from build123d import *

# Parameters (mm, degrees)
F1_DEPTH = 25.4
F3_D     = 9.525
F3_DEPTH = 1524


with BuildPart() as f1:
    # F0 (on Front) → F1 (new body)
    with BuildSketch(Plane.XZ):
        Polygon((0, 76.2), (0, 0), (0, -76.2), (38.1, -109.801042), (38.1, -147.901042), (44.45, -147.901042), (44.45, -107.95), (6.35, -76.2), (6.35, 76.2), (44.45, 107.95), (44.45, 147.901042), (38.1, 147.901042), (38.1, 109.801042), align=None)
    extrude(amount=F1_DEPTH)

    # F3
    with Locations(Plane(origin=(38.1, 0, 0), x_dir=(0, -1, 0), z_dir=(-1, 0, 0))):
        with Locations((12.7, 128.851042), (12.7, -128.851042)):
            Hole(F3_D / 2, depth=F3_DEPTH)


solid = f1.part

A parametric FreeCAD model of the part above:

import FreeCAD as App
import Part
import Sketcher
from FreeCAD import Vector
Q = App.Units.Quantity

doc = App.newDocument("Part")
body = doc.addObject("PartDesign::Body", "Body")

sketch1 = doc.addObject("Sketcher::SketchObject", "Sketch")
body.addObject(sketch1)
sketch1.AttachmentSupport = (doc.XZ_Plane, [""])
sketch1.MapMode = "FlatFace"
sketch1.addGeometry([
    Part.LineSegment(Vector(0, 76, 0), Vector(0, -76, 0)),
    Part.LineSegment(Vector(0, -76, 0), Vector(38, -110, 0)),
    Part.LineSegment(Vector(38, -110, 0), Vector(38, -148, 0)),
    Part.LineSegment(Vector(38, -148, 0), Vector(44, -148, 0)),
    Part.LineSegment(Vector(44, -148, 0), Vector(44, -108, 0)),
    Part.LineSegment(Vector(44, -108, 0), Vector(6, -76, 0)),
    Part.LineSegment(Vector(6, -76, 0), Vector(6, 76, 0)),
    Part.LineSegment(Vector(6, 76, 0), Vector(44, 108, 0)),
    Part.LineSegment(Vector(44, 108, 0), Vector(44, 148, 0)),
    Part.LineSegment(Vector(44, 148, 0), Vector(38, 148, 0)),
    Part.LineSegment(Vector(38, 148, 0), Vector(38, 110, 0)),
    Part.LineSegment(Vector(38, 110, 0), Vector(0, 76, 0)),
], False)
sketch1.addConstraint([
    Sketcher.Constraint("Coincident", 0, 2, 1, 1),
    Sketcher.Constraint("Coincident", 1, 2, 2, 1),
    Sketcher.Constraint("Coincident", 2, 2, 3, 1),
    Sketcher.Constraint("Coincident", 3, 2, 4, 1),
    Sketcher.Constraint("Coincident", 4, 2, 5, 1),
    Sketcher.Constraint("Coincident", 5, 2, 6, 1),
    Sketcher.Constraint("Coincident", 6, 2, 7, 1),
    Sketcher.Constraint("Coincident", 7, 2, 8, 1),
    Sketcher.Constraint("Coincident", 8, 2, 9, 1),
    Sketcher.Constraint("Coincident", 9, 2, 10, 1),
    Sketcher.Constraint("Coincident", 10, 2, 11, 1),
    Sketcher.Constraint("Coincident", 11, 2, 0, 1),
    Sketcher.Constraint("Vertical", 0),
    Sketcher.Constraint("Vertical", 2),
    Sketcher.Constraint("Horizontal", 3),
    Sketcher.Constraint("Vertical", 4),
    Sketcher.Constraint("Vertical", 6),
    Sketcher.Constraint("Vertical", 8),
    Sketcher.Constraint("Horizontal", 9),
    Sketcher.Constraint("Vertical", 10),
    Sketcher.Constraint("Symmetric", 0, 2, 11, 2, -1, 1),
    Sketcher.Constraint("Symmetric", 4, 2, 7, 2, -1),
    Sketcher.Constraint("Symmetric", 2, 2, 9, 2, -1),
    Sketcher.Constraint("Horizontal", 0, 2, 5, 2),
    Sketcher.Constraint("Horizontal", 6, 2, 11, 2),
    Sketcher.Constraint("Equal", 2, 10),
    Sketcher.Constraint("DistanceY", 0, 2, 0, 1, Q("6 in")),
    Sketcher.Constraint("Distance", 1, Q("2 in")),
    Sketcher.Constraint("DistanceY", 2, 2, 2, 1, Q("1.5 in")),
    Sketcher.Constraint("DistanceX", 3, 1, 3, 2, Q("0.25 in")),
    Sketcher.Constraint("DistanceX", -1, 1, 1, 2, Q("1.5 in")),
    Sketcher.Constraint("DistanceX", 5, 2, 4, 2, Q("1.5 in")),
    Sketcher.Constraint("DistanceY", 4, 2, 7, 2, Q("8.5 in")),
])
pad1 = doc.addObject("PartDesign::Pad", "Pad")
body.addObject(pad1)
pad1.Profile = sketch1
pad1.Length = Q("1 in")

sketch2 = doc.addObject("Sketcher::SketchObject", "Sketch001")
body.addObject(sketch2)
sketch2.AttachmentSupport = (doc.YZ_Plane, [""])
sketch2.MapMode = "FlatFace"
sketch2.AttachmentOffset = App.Placement(Vector(0, 0, 1.5 * 25.4), App.Rotation())
sketch2.addGeometry([
    Part.Circle(Vector(-12.7, 128.9, 0), Vector(0, 0, 1), 4.8),
    Part.Circle(Vector(-12.7, -128.9, 0), Vector(0, 0, 1), 4.8),
], False)
sketch2.addConstraint([
    Sketcher.Constraint("Equal", 0, 1),
    Sketcher.Constraint("Symmetric", 0, 3, 1, 3, -1),
    Sketcher.Constraint("Diameter", 0, Q("0.375 in")),
    Sketcher.Constraint("DistanceX", 0, 3, -1, 1, Q("0.5 in")),
    Sketcher.Constraint("DistanceY", -1, 1, 0, 3, 128.851042),
])
doc.recompute()
hole = doc.addObject("PartDesign::Hole", "Hole")
body.addObject(hole)
hole.Profile = sketch2
hole.ThreadType = "None"
hole.Diameter = Q("0.375 in")
hole.DepthType = "Dimension"
hole.Depth = Q("60 in")
hole.DrillPoint = "Flat"
hole.Reversed = True

doc.recompute()
